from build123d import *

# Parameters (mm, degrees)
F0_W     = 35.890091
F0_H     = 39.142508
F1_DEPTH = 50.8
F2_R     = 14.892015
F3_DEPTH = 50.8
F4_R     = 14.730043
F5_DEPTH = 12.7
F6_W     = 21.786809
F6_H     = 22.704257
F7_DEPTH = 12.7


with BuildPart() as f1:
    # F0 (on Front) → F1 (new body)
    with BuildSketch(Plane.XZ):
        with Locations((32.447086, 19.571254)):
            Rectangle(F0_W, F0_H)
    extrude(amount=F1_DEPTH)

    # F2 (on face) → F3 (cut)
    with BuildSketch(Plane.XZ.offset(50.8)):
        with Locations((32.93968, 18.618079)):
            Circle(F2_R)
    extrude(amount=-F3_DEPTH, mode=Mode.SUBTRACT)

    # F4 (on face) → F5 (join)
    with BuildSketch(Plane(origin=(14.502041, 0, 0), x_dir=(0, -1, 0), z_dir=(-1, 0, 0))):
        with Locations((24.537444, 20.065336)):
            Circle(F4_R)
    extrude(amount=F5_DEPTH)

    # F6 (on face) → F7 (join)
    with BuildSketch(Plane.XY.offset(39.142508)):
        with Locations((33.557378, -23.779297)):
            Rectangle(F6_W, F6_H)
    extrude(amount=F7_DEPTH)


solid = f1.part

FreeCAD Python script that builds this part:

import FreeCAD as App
import Part
import Sketcher

V = App.Vector
Q = App.Units.Quantity

doc = App.newDocument("Part")
body = doc.addObject("PartDesign::Body", "Body")

sketch1 = doc.addObject("Sketcher::SketchObject", "Sketch")
body.addObject(sketch1)
sketch1.AttachmentSupport = (doc.XZ_Plane, [""])
sketch1.MapMode = "FlatFace"
sketch1.addGeometry(Part.LineSegment(V(14.50204, 39.142508, 0), V(14.50204, 0, 0)), False)
sketch1.addGeometry(Part.LineSegment(V(14.50204, 0, 0), V(50.392131, 0, 0)), False)
sketch1.addGeometry(Part.LineSegment(V(50.392131, 0, 0), V(50.392131, 39.142508, 0)), False)
sketch1.addGeometry(Part.LineSegment(V(50.392131, 39.142508, 0), V(14.50204, 39.142508, 0)), False)
sketch1.addConstraint(Sketcher.Constraint("Coincident", 0, 2, 1, 1))
sketch1.addConstraint(Sketcher.Constraint("Coincident", 1, 2, 2, 1))
sketch1.addConstraint(Sketcher.Constraint("Coincident", 2, 2, 3, 1))
sketch1.addConstraint(Sketcher.Constraint("Coincident", 3, 2, 0, 1))
sketch1.addConstraint(Sketcher.Constraint("Vertical", 0))
sketch1.addConstraint(Sketcher.Constraint("Horizontal", 1))
sketch1.addConstraint(Sketcher.Constraint("Vertical", 2))
sketch1.addConstraint(Sketcher.Constraint("Horizontal", 3))
sketch1.addConstraint(Sketcher.Constraint("PointOnObject", 0, 2, -1))
sketch1.addConstraint(Sketcher.Constraint("DistanceX", 1, 1, 1, 2, Q("35.890091 mm")))
sketch1.addConstraint(Sketcher.Constraint("DistanceY", 0, 2, 0, 1, Q("39.142508 mm")))
sketch1.addConstraint(Sketcher.Constraint("DistanceX", -1, 1, 0, 2, Q("14.50204 mm")))
pad1 = doc.addObject("PartDesign::Pad", "Pad")
body.addObject(pad1)
pad1.Profile = sketch1
pad1.Length = Q("2 in")

sketch2 = doc.addObject("Sketcher::SketchObject", "Sketch001")
body.addObject(sketch2)
sketch2.AttachmentSupport = (doc.XZ_Plane, [""])
sketch2.MapMode = "FlatFace"
sketch2.AttachmentOffset = App.Placement(V(0, 0, 2 * 25.4), App.Rotation())
sketch2.addGeometry(Part.Circle(V(32.93968, 18.618079, 0), V(0, 0, 1), 14.892015), False)
sketch2.addConstraint(Sketcher.Constraint("Diameter", 0, Q("29.78403 mm")))
sketch2.addConstraint(Sketcher.Constraint("DistanceX", -1, 1, 0, 3, Q("32.93968 mm")))
sketch2.addConstraint(Sketcher.Constraint("DistanceY", -1, 1, 0, 3, Q("18.618079 mm")))
pocket1 = doc.addObject("PartDesign::Pocket", "Pocket")
body.addObject(pocket1)
pocket1.Profile = sketch2
pocket1.Length = Q("2 in")

sketch3 = doc.addObject("Sketcher::SketchObject", "Sketch002")
body.addObject(sketch3)
sketch3.AttachmentSupport = (doc.YZ_Plane, [""])
sketch3.MapMode = "FlatFace"
sketch3.AttachmentOffset = App.Placement(V(0, 0, 14.502041), App.Rotation())
sketch3.addGeometry(Part.Circle(V(-24.537444, 20.065336, 0), V(0, 0, 1), 14.730043), False)
sketch3.addConstraint(Sketcher.Constraint("Diameter", 0, Q("29.460086 mm")))
sketch3.addConstraint(Sketcher.Constraint("DistanceX", 0, 3, -1, 1, Q("24.537444 mm")))
sketch3.addConstraint(Sketcher.Constraint("DistanceY", -1, 1, 0, 3, Q("20.065336 mm")))
pad2 = doc.addObject("PartDesign::Pad", "Pad001")
body.addObject(pad2)
pad2.Profile = sketch3
pad2.Length = Q("0.5 in")
pad2.Reversed = True

sketch4 = doc.addObject("Sketcher::SketchObject", "Sketch003")
body.addObject(sketch4)
sketch4.AttachmentSupport = (doc.XY_Plane, [""])
sketch4.MapMode = "FlatFace"
sketch4.AttachmentOffset = App.Placement(V(0, 0, 39.142508), App.Rotation())
sketch4.addGeometry(Part.LineSegment(V(22.663974, -12.427169, 0), V(22.663974, -35.131425, 0)), False)
sketch4.addGeometry(Part.LineSegment(V(22.663974, -35.131425, 0), V(44.450783, -35.131425, 0)), False)
sketch4.addGeometry(Part.LineSegment(V(44.450783, -35.131425, 0), V(44.450783, -12.427169, 0)), False)
sketch4.addGeometry(Part.LineSegment(V(44.450783, -12.427169, 0), V(22.663974, -12.427169, 0)), False)
sketch4.addConstraint(Sketcher.Constraint("Coincident", 0, 2, 1, 1))
sketch4.addConstraint(Sketcher.Constraint("Coincident", 1, 2, 2, 1))
sketch4.addConstraint(Sketcher.Constraint("Coincident", 2, 2, 3, 1))
sketch4.addConstraint(Sketcher.Constraint("Coincident", 3, 2, 0, 1))
sketch4.addConstraint(Sketcher.Constraint("Vertical", 0))
sketch4.addConstraint(Sketcher.Constraint("Horizontal", 1))
sketch4.addConstraint(Sketcher.Constraint("Vertical", 2))
sketch4.addConstraint(Sketcher.Constraint("Horizontal", 3))
sketch4.addConstraint(Sketcher.Constraint("DistanceX", 1, 1, 1, 2, Q("21.786809 mm")))
sketch4.addConstraint(Sketcher.Constraint("DistanceY", 0, 2, 0, 1, Q("22.704257 mm")))
sketch4.addConstraint(Sketcher.Constraint("DistanceY", 2, 2, -1, 1, Q("12.427169 mm")))
sketch4.addConstraint(Sketcher.Constraint("DistanceX", -1, 1, 0, 2, Q("22.663974 mm")))
pad3 = doc.addObject("PartDesign::Pad", "Pad002")
body.addObject(pad3)
pad3.Profile = sketch4
pad3.Length = Q("0.5 in")

doc.recompute()
